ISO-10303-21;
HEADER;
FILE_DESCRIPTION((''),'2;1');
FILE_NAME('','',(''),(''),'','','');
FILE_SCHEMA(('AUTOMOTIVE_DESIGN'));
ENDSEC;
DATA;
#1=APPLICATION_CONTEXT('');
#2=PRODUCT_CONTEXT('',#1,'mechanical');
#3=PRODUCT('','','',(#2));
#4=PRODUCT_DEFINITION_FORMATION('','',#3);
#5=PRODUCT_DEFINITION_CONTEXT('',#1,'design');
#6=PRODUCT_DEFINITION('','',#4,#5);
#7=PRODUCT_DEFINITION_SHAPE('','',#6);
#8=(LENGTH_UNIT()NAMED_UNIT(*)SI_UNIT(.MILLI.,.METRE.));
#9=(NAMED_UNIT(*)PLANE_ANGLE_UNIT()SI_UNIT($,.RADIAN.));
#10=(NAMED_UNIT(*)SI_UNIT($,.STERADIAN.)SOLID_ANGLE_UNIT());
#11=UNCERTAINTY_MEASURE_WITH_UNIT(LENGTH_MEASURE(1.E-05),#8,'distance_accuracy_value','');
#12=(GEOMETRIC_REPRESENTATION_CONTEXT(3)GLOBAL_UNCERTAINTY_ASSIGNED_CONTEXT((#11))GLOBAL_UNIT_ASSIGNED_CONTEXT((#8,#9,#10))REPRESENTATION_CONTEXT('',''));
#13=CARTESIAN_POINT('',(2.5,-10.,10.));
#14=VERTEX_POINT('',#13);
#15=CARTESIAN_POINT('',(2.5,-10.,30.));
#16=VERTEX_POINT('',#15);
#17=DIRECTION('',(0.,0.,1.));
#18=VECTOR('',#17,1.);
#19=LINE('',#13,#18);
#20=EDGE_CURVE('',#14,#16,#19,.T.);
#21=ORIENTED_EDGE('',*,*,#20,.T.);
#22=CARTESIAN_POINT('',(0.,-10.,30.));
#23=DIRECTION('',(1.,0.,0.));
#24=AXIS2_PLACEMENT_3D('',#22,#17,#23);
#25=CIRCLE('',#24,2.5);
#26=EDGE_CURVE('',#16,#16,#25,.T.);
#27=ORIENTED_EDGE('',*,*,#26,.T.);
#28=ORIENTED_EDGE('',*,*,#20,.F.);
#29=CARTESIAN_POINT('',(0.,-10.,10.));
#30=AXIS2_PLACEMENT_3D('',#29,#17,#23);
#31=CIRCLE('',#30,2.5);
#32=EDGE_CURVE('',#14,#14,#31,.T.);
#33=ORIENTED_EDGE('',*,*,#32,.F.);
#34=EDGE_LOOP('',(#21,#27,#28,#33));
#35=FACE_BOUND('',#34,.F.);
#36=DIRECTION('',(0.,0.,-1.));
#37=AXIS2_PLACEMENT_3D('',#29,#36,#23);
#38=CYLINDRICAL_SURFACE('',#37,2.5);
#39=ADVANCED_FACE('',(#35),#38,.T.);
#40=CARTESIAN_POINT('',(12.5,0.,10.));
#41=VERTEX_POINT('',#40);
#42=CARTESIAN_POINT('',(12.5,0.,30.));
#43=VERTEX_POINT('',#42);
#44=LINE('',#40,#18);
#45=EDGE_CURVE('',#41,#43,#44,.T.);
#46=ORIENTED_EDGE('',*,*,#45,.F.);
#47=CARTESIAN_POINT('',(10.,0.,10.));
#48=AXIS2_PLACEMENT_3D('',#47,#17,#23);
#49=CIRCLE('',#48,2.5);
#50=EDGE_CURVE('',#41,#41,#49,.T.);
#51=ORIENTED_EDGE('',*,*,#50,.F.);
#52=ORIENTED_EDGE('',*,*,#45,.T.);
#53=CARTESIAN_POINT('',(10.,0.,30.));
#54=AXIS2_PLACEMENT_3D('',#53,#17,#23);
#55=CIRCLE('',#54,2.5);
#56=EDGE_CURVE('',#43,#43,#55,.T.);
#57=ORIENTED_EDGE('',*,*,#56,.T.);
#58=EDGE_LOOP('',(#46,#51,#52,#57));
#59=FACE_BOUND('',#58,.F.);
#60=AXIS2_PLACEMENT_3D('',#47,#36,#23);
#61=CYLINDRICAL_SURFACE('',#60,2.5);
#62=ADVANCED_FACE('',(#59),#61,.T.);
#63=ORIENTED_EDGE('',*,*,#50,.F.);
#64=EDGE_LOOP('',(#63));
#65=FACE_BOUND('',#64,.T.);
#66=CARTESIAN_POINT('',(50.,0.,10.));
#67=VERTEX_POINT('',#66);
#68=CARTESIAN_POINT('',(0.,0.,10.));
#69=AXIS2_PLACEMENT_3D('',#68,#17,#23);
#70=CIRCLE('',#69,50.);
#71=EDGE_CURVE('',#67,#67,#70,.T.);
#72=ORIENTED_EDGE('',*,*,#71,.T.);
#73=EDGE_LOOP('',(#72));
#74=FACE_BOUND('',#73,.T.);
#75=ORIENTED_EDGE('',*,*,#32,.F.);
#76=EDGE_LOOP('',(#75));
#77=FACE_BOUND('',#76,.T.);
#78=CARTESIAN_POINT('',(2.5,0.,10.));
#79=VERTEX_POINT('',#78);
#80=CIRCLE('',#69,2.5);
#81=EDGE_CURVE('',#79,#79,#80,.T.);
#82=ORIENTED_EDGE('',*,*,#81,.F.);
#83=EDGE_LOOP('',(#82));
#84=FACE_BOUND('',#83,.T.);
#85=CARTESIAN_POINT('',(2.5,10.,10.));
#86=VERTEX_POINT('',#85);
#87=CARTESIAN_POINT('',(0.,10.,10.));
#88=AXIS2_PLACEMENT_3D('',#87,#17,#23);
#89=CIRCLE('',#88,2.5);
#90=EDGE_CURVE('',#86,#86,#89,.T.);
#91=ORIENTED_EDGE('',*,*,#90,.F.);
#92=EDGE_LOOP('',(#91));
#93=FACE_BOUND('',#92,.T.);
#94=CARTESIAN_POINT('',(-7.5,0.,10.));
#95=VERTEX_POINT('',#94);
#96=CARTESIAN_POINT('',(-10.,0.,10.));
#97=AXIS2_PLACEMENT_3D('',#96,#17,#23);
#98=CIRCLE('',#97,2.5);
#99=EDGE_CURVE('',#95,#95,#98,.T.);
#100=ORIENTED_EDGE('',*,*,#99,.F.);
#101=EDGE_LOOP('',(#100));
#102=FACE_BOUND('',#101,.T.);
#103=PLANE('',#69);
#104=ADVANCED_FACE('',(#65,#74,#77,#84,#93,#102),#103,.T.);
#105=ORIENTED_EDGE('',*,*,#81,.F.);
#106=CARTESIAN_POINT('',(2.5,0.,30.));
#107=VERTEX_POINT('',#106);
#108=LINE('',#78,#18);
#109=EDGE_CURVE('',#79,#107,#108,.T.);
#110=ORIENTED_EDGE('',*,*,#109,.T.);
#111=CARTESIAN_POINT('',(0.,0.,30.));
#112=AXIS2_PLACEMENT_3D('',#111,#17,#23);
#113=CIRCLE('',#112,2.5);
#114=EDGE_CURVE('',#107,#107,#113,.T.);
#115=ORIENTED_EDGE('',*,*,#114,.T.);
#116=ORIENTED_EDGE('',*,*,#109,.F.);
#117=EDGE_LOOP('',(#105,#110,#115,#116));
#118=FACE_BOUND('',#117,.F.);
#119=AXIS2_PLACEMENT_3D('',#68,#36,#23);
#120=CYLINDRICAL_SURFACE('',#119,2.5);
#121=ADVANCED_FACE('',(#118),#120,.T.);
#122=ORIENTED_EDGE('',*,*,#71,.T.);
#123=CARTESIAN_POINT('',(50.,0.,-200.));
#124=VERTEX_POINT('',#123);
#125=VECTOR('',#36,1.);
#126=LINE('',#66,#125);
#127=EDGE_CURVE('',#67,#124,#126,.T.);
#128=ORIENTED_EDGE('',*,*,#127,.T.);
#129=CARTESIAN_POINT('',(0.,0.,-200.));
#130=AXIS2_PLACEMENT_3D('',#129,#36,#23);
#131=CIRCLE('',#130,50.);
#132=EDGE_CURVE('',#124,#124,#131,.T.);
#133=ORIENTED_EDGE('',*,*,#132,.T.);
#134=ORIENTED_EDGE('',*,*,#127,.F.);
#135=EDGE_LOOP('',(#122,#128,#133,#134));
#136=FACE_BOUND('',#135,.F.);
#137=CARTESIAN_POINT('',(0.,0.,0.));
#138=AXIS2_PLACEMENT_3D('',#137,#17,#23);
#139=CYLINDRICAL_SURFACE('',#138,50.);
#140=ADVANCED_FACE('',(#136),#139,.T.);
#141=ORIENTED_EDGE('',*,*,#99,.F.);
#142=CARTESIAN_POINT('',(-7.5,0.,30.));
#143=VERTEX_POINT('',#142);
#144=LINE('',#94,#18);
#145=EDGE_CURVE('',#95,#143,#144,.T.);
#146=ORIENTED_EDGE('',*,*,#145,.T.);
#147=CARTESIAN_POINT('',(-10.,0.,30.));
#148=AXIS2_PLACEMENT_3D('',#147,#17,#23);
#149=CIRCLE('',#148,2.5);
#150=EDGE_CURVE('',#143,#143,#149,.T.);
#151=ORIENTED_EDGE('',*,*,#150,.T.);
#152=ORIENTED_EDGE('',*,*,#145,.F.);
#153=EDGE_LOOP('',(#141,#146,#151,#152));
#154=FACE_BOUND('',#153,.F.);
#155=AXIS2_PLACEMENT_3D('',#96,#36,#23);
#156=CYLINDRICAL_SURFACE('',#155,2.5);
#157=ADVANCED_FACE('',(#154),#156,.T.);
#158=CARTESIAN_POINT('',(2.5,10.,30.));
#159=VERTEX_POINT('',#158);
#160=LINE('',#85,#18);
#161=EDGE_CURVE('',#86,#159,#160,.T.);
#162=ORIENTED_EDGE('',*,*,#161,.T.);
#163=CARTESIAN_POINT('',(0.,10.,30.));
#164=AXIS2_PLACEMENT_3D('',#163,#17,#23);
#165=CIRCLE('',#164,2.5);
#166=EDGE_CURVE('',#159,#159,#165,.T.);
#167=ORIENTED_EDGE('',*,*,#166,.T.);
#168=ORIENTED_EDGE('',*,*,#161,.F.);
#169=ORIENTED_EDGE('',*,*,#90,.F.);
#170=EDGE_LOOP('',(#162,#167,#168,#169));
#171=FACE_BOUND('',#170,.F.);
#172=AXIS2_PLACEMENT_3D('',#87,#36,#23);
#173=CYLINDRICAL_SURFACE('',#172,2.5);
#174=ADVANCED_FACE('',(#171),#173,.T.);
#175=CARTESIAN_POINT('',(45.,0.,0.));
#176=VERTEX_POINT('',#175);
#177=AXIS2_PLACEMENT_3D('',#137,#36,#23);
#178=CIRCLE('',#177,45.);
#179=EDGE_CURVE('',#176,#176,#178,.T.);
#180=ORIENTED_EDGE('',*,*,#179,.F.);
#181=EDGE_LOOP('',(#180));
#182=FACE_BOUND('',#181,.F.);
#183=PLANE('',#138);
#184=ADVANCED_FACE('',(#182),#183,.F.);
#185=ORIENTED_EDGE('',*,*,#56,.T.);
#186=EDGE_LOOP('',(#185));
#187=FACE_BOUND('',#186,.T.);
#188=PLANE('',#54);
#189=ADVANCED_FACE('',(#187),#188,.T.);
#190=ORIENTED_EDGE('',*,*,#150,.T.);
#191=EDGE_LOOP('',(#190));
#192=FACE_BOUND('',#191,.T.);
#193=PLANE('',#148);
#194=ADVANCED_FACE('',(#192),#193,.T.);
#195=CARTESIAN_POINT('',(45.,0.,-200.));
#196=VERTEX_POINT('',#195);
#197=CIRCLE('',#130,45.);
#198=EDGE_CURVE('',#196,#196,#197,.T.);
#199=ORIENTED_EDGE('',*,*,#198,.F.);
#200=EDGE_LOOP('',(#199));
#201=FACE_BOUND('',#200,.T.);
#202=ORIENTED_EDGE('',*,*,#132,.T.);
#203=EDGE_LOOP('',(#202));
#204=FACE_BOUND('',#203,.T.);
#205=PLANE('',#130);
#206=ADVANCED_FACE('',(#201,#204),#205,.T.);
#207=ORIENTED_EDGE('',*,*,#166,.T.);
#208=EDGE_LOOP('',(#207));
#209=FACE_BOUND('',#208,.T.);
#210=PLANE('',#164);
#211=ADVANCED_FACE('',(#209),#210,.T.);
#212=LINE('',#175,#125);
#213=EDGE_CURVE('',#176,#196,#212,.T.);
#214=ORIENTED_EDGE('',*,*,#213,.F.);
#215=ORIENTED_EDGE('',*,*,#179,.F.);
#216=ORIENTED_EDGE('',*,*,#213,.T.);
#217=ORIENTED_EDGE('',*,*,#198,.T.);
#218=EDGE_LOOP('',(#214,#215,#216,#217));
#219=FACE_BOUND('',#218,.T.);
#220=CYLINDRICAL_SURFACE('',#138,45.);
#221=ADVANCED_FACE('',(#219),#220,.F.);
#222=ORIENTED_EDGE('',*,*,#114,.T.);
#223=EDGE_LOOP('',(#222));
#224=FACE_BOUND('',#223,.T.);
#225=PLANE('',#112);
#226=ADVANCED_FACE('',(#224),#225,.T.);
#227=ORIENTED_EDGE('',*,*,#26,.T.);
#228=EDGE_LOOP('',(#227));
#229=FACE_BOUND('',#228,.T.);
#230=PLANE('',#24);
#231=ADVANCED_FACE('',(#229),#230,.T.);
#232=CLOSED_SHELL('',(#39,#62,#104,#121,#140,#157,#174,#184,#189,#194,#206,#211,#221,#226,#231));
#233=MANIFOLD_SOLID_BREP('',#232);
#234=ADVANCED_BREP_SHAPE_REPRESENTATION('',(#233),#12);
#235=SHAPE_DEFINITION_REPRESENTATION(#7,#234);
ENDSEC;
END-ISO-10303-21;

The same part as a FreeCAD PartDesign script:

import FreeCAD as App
import Part
import Sketcher
Q = App.Units.Quantity

doc = App.newDocument("Part")
body = doc.addObject("PartDesign::Body", "Body")

# Sketch on XY plane
sketch1 = doc.addObject("Sketcher::SketchObject", "Sketch")
body.addObject(sketch1)
sketch1.AttachmentSupport = (doc.XY_Plane, [""])
sketch1.MapMode = "FlatFace"
sketch1.addGeometry(Part.Circle(App.Vector(0, 0, 0), App.Vector(0, 0, 1), 50), False)
sketch1.addConstraint(Sketcher.Constraint("Coincident", 0, 3, -1, 1))
sketch1.addConstraint(Sketcher.Constraint("Diameter", 0, Q("100 mm")))
pad1 = doc.addObject("PartDesign::Pad", "Pad")
body.addObject(pad1)
pad1.Profile = sketch1
pad1.Length = 10

# Sketch on XY plane
sketch2 = doc.addObject("Sketcher::SketchObject", "Sketch001")
body.addObject(sketch2)
sketch2.AttachmentSupport = (doc.XY_Plane, [""])
sketch2.MapMode = "FlatFace"
sketch2.addGeometry(Part.Circle(App.Vector(0, 0, 0), App.Vector(0, 0, 1), 50), False)
sketch2.addGeometry(Part.Circle(App.Vector(0, 0, 0), App.Vector(0, 0, 1), 45), False)
sketch2.addConstraint(Sketcher.Constraint("Coincident", 0, 3, -1, 1))
sketch2.addConstraint(Sketcher.Constraint("Coincident", 1, 3, -1, 1))
sketch2.addConstraint(Sketcher.Constraint("Diameter", 0, Q("100 mm")))
sketch2.addConstraint(Sketcher.Constraint("Diameter", 1, Q("90 mm")))
pad2 = doc.addObject("PartDesign::Pad", "Pad001")
body.addObject(pad2)
pad2.Profile = sketch2
pad2.Length = 200
pad2.Reversed = True

# Sketch on XY plane
sketch3 = doc.addObject("Sketcher::SketchObject", "Sketch002")
body.addObject(sketch3)
sketch3.AttachmentSupport = (doc.XY_Plane, [""])
sketch3.MapMode = "FlatFace"
sketch3.AttachmentOffset = App.Placement(App.Vector(0, 0, 10), App.Rotation())
sketch3.addGeometry(Part.Circle(App.Vector(0, 0, 0), App.Vector(0, 0, 1), 2.5), False)
sketch3.addGeometry(Part.Circle(App.Vector(-10, 0, 0), App.Vector(0, 0, 1), 2.5), False)
sketch3.addGeometry(Part.Circle(App.Vector(0, 10, 0), App.Vector(0, 0, 1), 2.5), False)
sketch3.addGeometry(Part.Circle(App.Vector(10, 0, 0), App.Vector(0, 0, 1), 2.5), False)
sketch3.addGeometry(Part.Circle(App.Vector(0, -10, 0), App.Vector(0, 0, 1), 2.5), False)
sketch3.addConstraint(Sketcher.Constraint("Coincident", 0, 3, -1, 1))
sketch3.addConstraint(Sketcher.Constraint("Equal", 0, 1))
sketch3.addConstraint(Sketcher.Constraint("Equal", 1, 2))
sketch3.addConstraint(Sketcher.Constraint("Equal", 2, 3))
sketch3.addConstraint(Sketcher.Constraint("Equal", 3, 4))
sketch3.addConstraint(Sketcher.Constraint("Symmetric", 1, 3, 3, 3, -1, 1))
sketch3.addConstraint(Sketcher.Constraint("Symmetric", 2, 3, 4, 3, -1, 1))
sketch3.addConstraint(Sketcher.Constraint("PointOnObject", 1, 3, -1))
sketch3.addConstraint(Sketcher.Constraint("PointOnObject", 2, 3, -2))
sketch3.addConstraint(Sketcher.Constraint("Diameter", 0, Q("5 mm")))
sketch3.addConstraint(Sketcher.Constraint("DistanceX", 1, 3, -1, 1, Q("10 mm")))
sketch3.addConstraint(Sketcher.Constraint("DistanceY", -1, 1, 2, 3, Q("10 mm")))
pad3 = doc.addObject("PartDesign::Pad", "Pad002")
body.addObject(pad3)
pad3.Profile = sketch3
pad3.Length = 20

doc.recompute()
